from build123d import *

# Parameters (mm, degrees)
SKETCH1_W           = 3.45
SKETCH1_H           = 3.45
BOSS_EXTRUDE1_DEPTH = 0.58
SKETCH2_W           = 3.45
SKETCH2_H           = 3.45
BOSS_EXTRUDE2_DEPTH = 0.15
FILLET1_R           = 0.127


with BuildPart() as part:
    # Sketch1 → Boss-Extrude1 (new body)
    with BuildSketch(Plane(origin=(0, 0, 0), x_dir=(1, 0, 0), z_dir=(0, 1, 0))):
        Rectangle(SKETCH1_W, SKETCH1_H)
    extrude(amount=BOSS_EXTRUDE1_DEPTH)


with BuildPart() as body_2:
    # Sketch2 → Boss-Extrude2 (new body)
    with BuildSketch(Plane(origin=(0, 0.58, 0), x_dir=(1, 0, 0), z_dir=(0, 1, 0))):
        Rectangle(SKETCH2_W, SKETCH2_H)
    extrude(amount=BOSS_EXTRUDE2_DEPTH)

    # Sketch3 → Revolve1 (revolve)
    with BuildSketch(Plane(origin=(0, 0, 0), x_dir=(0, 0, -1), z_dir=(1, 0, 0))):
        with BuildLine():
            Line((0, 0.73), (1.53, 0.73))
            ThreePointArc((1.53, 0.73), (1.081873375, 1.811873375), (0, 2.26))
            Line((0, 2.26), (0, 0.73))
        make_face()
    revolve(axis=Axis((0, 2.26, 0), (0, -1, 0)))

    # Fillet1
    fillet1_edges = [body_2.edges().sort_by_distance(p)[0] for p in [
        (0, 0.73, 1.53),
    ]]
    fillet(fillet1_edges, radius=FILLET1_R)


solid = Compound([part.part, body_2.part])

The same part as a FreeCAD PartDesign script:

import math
import FreeCAD as App
import Part
import Sketcher

V = App.Vector


def edges_at(feature, points):
    """Names of the edges that pass closest to the given points."""
    edges = feature.Shape.Edges
    near = lambda p: min(range(len(edges)), key=lambda i: edges[i].distToShape(Part.Vertex(*p))[0])
    return sorted({f"Edge{near(p) + 1}" for p in points})

doc = App.newDocument("Part")
params = doc.addObject("Spreadsheet::Sheet", "Params")
for row, (alias, value) in enumerate([
    ("pad1_length", "0.58 mm"),
    ("pad2_length", "0.15 mm"),
    ("revolution_angle", "360 deg"),
    ("fillet_radius", "0.005 in"),
], start=1):
    params.set(f"A{row}", alias)
    params.set(f"B{row}", "=" + value)
    params.setAlias(f"B{row}", alias)

body = doc.addObject("PartDesign::Body", "Body")

# Sketch on XZ plane
sketch1 = body.newObject("Sketcher::SketchObject", "Sketch")
sketch1.AttachmentSupport = (doc.getObject("XZ_Plane"), [""])
sketch1.MapMode = "FlatFace"
sketch1.addGeometry([
    Part.LineSegment(V(-1.7, -1.7, 0), V(-1.7, 1.7, 0)),
    Part.LineSegment(V(-1.7, 1.7, 0), V(1.7, 1.7, 0)),
    Part.LineSegment(V(1.7, 1.7, 0), V(1.7, -1.7, 0)),
    Part.LineSegment(V(1.7, -1.7, 0), V(-1.7, -1.7, 0)),
], False)
sketch1.addConstraint([
    Sketcher.Constraint("Coincident", 0, 2, 1, 1),
    Sketcher.Constraint("Coincident", 1, 2, 2, 1),
    Sketcher.Constraint("Coincident", 2, 2, 3, 1),
    Sketcher.Constraint("Coincident", 3, 2, 0, 1),
    Sketcher.Constraint("Vertical", 0),
    Sketcher.Constraint("Horizontal", 1),
    Sketcher.Constraint("Vertical", 2),
    Sketcher.Constraint("Horizontal", 3),
    Sketcher.Constraint("Symmetric", 0, 2, 2, 2, -1, 1),
    Sketcher.Constraint("Equal", 3, 0),
    Sketcher.Constraint("DistanceX", 1, 1, 1, 2, 3.45),
])
pad1 = body.newObject("PartDesign::Pad", "Pad")
pad1.Profile = sketch1
pad1.setExpression("Length", "Params.pad1_length")
pad1.Reversed = True
body2 = doc.addObject("PartDesign::Body", "Body001")

# Sketch on XZ plane
sketch2 = body2.newObject("Sketcher::SketchObject", "Sketch001")
sketch2.AttachmentSupport = (doc.getObject("XZ_Plane001"), [""])
sketch2.MapMode = "FlatFace"
sketch2.AttachmentOffset = App.Placement(V(0, 0, -0.58), App.Rotation())
sketch2.addGeometry([
    Part.LineSegment(V(-1.7, -1.7, 0), V(-1.7, 1.7, 0)),
    Part.LineSegment(V(-1.7, 1.7, 0), V(1.7, 1.7, 0)),
    Part.LineSegment(V(1.7, 1.7, 0), V(1.7, -1.7, 0)),
    Part.LineSegment(V(1.7, -1.7, 0), V(-1.7, -1.7, 0)),
], False)
sketch2.addConstraint([
    Sketcher.Constraint("Coincident", 0, 2, 1, 1),
    Sketcher.Constraint("Coincident", 1, 2, 2, 1),
    Sketcher.Constraint("Coincident", 2, 2, 3, 1),
    Sketcher.Constraint("Coincident", 3, 2, 0, 1),
    Sketcher.Constraint("Vertical", 0),
    Sketcher.Constraint("Horizontal", 1),
    Sketcher.Constraint("Vertical", 2),
    Sketcher.Constraint("Horizontal", 3),
    Sketcher.Constraint("Symmetric", 0, 2, 2, 2, -1, 1),
    Sketcher.Constraint("Equal", 3, 0),
    Sketcher.Constraint("DistanceX", 1, 1, 1, 2, 3.45),
])
pad2 = body2.newObject("PartDesign::Pad", "Pad001")
pad2.Profile = sketch2
pad2.setExpression("Length", "Params.pad2_length")
pad2.Reversed = True

# Sketch on YZ plane
sketch3 = body2.newObject("Sketcher::SketchObject", "Sketch002")
sketch3.AttachmentSupport = (doc.getObject("YZ_Plane001"), [""])
sketch3.MapMode = "FlatFace"
sketch3.addGeometry([
    Part.LineSegment(V(0.7, 0, 0), V(0.7, -1.5, 0)),
    Part.ArcOfCircle(Part.Circle(V(0.7, 0, 0), V(0, 0, 1), 1.5), math.radians(-90), math.radians(0)),
    Part.LineSegment(V(2.3, 0, 0), V(0.7, 0, 0)),
], False)
sketch3.addConstraint([
    Sketcher.Constraint("Coincident", 0, 2, 1, 1),
    Sketcher.Constraint("Coincident", 1, 2, 2, 1),
    Sketcher.Constraint("Coincident", 2, 2, 0, 1),
    Sketcher.Constraint("Vertical", 0),
    Sketcher.Constraint("Horizontal", 2),
    Sketcher.Constraint("Coincident", 2, 2, 1, 3),
    Sketcher.Constraint("PointOnObject", 1, 3, -1),
    Sketcher.Constraint("Radius", 1, 1.53),
    Sketcher.Constraint("DistanceX", -1, 1, 1, 3, 0.73),
])
revolution = body2.newObject("PartDesign::Revolution", "Revolution")
revolution.Profile = sketch3
revolution.ReferenceAxis = (sketch3, ["H_Axis"])
revolution.setExpression("Angle", "Params.revolution_angle")
doc.recompute()

fillet = body2.newObject("PartDesign::Fillet", "Fillet")
fillet.Base = (revolution, edges_at(revolution, [(0, 0.73, 1.53)]))
fillet.setExpression("Radius", "Params.fillet_radius")

doc.recompute()
